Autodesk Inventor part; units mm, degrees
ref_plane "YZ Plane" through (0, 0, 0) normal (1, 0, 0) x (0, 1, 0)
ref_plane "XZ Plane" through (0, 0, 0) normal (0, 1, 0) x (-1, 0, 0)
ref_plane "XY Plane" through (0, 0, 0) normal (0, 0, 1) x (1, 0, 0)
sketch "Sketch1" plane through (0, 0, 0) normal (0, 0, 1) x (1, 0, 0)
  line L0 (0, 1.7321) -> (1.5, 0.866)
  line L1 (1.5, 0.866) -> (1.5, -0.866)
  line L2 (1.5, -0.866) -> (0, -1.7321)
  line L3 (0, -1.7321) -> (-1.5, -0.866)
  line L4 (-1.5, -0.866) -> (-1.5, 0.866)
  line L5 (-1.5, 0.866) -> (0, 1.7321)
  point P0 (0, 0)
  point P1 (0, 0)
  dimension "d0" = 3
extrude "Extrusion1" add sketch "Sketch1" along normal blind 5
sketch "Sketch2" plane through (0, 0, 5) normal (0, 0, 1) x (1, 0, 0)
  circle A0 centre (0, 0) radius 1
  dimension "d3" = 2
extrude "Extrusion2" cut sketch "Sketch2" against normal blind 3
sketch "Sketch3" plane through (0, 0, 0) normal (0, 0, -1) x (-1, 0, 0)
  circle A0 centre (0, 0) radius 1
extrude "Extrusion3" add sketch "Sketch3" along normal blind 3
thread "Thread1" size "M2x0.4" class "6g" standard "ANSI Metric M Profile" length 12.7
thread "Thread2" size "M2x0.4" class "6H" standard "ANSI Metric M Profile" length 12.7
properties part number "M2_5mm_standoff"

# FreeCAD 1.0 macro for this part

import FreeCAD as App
import Part
import Sketcher
Q = App.Units.Quantity


def add_polygon(sketch, points):
    """Adds a closed chain of lines whose ends are joined by coincident constraints."""
    first, n = sketch.GeometryCount, len(points)
    for a, b in zip(points, points[1:] + points[:1]):
        sketch.addGeometry(Part.LineSegment(App.Vector(*a, 0), App.Vector(*b, 0)), False)
    for i in range(n):
        sketch.addConstraint(Sketcher.Constraint("Coincident", first + i, 2, first + (i + 1) % n, 1))

doc = App.newDocument("Part")
body = doc.addObject("PartDesign::Body", "Body")

# Sketch on XY plane
sketch1 = body.newObject("Sketcher::SketchObject", "Sketch")
sketch1.AttachmentSupport = (doc.getObject("XY_Plane"), [""])
sketch1.MapMode = "FlatFace"
add_polygon(sketch1, [(1.5, 0.9), (0, 1.7), (-1.5, 0.9), (-1.5, -0.9), (0, -1.7), (1.5, -0.9)])  # lines 0-5
sketch1.addConstraint(Sketcher.Constraint("Vertical", 2))
sketch1.addConstraint(Sketcher.Constraint("Vertical", 5))
sketch1.addConstraint(Sketcher.Constraint("Symmetric", 0, 2, 3, 2, -1, 1))
sketch1.addConstraint(Sketcher.Constraint("Symmetric", 1, 2, 4, 2, -1, 1))
sketch1.addConstraint(Sketcher.Constraint("PointOnObject", 0, 2, -2))
sketch1.addConstraint(Sketcher.Constraint("Parallel", 0, 3))
sketch1.addConstraint(Sketcher.Constraint("Horizontal", 2, 2, 4, 2))
sketch1.addConstraint(Sketcher.Constraint("DistanceX", 2, 2, 4, 2, Q("3 mm")))
sketch1.addConstraint(Sketcher.Constraint("DistanceY", 2, 2, 2, 1, Q("1.732 mm")))
sketch1.addConstraint(Sketcher.Constraint("Distance", 0, Q("1.732 mm")))
pad1 = body.newObject("PartDesign::Pad", "Pad")
pad1.Profile = sketch1
pad1.Length = 5

# Sketch on XY plane
sketch2 = body.newObject("Sketcher::SketchObject", "Sketch001")
sketch2.AttachmentSupport = (doc.getObject("XY_Plane"), [""])
sketch2.MapMode = "FlatFace"
sketch2.AttachmentOffset = App.Placement(App.Vector(0, 0, 5), App.Rotation())
sketch2.addGeometry(Part.Circle(App.Vector(0, 0, 0), App.Vector(0, 0, 1), 1), False)
sketch2.addConstraint(Sketcher.Constraint("Coincident", 0, 3, -1, 1))
sketch2.addConstraint(Sketcher.Constraint("Diameter", 0, Q("2 mm")))
pocket1 = body.newObject("PartDesign::Pocket", "Pocket")
pocket1.Profile = sketch2
pocket1.Length = 3

# Sketch on XY plane
sketch3 = body.newObject("Sketcher::SketchObject", "Sketch002")
sketch3.AttachmentSupport = (doc.getObject("XY_Plane"), [""])
sketch3.MapMode = "FlatFace"
sketch3.addGeometry(Part.Circle(App.Vector(0, 0, 0), App.Vector(0, 0, 1), 1), False)
sketch3.addConstraint(Sketcher.Constraint("Coincident", 0, 3, -1, 1))
sketch3.addConstraint(Sketcher.Constraint("Diameter", 0, Q("2 mm")))
pad2 = body.newObject("PartDesign::Pad", "Pad001")
pad2.Profile = sketch3
pad2.Length = 3
pad2.Reversed = True

doc.recompute()
